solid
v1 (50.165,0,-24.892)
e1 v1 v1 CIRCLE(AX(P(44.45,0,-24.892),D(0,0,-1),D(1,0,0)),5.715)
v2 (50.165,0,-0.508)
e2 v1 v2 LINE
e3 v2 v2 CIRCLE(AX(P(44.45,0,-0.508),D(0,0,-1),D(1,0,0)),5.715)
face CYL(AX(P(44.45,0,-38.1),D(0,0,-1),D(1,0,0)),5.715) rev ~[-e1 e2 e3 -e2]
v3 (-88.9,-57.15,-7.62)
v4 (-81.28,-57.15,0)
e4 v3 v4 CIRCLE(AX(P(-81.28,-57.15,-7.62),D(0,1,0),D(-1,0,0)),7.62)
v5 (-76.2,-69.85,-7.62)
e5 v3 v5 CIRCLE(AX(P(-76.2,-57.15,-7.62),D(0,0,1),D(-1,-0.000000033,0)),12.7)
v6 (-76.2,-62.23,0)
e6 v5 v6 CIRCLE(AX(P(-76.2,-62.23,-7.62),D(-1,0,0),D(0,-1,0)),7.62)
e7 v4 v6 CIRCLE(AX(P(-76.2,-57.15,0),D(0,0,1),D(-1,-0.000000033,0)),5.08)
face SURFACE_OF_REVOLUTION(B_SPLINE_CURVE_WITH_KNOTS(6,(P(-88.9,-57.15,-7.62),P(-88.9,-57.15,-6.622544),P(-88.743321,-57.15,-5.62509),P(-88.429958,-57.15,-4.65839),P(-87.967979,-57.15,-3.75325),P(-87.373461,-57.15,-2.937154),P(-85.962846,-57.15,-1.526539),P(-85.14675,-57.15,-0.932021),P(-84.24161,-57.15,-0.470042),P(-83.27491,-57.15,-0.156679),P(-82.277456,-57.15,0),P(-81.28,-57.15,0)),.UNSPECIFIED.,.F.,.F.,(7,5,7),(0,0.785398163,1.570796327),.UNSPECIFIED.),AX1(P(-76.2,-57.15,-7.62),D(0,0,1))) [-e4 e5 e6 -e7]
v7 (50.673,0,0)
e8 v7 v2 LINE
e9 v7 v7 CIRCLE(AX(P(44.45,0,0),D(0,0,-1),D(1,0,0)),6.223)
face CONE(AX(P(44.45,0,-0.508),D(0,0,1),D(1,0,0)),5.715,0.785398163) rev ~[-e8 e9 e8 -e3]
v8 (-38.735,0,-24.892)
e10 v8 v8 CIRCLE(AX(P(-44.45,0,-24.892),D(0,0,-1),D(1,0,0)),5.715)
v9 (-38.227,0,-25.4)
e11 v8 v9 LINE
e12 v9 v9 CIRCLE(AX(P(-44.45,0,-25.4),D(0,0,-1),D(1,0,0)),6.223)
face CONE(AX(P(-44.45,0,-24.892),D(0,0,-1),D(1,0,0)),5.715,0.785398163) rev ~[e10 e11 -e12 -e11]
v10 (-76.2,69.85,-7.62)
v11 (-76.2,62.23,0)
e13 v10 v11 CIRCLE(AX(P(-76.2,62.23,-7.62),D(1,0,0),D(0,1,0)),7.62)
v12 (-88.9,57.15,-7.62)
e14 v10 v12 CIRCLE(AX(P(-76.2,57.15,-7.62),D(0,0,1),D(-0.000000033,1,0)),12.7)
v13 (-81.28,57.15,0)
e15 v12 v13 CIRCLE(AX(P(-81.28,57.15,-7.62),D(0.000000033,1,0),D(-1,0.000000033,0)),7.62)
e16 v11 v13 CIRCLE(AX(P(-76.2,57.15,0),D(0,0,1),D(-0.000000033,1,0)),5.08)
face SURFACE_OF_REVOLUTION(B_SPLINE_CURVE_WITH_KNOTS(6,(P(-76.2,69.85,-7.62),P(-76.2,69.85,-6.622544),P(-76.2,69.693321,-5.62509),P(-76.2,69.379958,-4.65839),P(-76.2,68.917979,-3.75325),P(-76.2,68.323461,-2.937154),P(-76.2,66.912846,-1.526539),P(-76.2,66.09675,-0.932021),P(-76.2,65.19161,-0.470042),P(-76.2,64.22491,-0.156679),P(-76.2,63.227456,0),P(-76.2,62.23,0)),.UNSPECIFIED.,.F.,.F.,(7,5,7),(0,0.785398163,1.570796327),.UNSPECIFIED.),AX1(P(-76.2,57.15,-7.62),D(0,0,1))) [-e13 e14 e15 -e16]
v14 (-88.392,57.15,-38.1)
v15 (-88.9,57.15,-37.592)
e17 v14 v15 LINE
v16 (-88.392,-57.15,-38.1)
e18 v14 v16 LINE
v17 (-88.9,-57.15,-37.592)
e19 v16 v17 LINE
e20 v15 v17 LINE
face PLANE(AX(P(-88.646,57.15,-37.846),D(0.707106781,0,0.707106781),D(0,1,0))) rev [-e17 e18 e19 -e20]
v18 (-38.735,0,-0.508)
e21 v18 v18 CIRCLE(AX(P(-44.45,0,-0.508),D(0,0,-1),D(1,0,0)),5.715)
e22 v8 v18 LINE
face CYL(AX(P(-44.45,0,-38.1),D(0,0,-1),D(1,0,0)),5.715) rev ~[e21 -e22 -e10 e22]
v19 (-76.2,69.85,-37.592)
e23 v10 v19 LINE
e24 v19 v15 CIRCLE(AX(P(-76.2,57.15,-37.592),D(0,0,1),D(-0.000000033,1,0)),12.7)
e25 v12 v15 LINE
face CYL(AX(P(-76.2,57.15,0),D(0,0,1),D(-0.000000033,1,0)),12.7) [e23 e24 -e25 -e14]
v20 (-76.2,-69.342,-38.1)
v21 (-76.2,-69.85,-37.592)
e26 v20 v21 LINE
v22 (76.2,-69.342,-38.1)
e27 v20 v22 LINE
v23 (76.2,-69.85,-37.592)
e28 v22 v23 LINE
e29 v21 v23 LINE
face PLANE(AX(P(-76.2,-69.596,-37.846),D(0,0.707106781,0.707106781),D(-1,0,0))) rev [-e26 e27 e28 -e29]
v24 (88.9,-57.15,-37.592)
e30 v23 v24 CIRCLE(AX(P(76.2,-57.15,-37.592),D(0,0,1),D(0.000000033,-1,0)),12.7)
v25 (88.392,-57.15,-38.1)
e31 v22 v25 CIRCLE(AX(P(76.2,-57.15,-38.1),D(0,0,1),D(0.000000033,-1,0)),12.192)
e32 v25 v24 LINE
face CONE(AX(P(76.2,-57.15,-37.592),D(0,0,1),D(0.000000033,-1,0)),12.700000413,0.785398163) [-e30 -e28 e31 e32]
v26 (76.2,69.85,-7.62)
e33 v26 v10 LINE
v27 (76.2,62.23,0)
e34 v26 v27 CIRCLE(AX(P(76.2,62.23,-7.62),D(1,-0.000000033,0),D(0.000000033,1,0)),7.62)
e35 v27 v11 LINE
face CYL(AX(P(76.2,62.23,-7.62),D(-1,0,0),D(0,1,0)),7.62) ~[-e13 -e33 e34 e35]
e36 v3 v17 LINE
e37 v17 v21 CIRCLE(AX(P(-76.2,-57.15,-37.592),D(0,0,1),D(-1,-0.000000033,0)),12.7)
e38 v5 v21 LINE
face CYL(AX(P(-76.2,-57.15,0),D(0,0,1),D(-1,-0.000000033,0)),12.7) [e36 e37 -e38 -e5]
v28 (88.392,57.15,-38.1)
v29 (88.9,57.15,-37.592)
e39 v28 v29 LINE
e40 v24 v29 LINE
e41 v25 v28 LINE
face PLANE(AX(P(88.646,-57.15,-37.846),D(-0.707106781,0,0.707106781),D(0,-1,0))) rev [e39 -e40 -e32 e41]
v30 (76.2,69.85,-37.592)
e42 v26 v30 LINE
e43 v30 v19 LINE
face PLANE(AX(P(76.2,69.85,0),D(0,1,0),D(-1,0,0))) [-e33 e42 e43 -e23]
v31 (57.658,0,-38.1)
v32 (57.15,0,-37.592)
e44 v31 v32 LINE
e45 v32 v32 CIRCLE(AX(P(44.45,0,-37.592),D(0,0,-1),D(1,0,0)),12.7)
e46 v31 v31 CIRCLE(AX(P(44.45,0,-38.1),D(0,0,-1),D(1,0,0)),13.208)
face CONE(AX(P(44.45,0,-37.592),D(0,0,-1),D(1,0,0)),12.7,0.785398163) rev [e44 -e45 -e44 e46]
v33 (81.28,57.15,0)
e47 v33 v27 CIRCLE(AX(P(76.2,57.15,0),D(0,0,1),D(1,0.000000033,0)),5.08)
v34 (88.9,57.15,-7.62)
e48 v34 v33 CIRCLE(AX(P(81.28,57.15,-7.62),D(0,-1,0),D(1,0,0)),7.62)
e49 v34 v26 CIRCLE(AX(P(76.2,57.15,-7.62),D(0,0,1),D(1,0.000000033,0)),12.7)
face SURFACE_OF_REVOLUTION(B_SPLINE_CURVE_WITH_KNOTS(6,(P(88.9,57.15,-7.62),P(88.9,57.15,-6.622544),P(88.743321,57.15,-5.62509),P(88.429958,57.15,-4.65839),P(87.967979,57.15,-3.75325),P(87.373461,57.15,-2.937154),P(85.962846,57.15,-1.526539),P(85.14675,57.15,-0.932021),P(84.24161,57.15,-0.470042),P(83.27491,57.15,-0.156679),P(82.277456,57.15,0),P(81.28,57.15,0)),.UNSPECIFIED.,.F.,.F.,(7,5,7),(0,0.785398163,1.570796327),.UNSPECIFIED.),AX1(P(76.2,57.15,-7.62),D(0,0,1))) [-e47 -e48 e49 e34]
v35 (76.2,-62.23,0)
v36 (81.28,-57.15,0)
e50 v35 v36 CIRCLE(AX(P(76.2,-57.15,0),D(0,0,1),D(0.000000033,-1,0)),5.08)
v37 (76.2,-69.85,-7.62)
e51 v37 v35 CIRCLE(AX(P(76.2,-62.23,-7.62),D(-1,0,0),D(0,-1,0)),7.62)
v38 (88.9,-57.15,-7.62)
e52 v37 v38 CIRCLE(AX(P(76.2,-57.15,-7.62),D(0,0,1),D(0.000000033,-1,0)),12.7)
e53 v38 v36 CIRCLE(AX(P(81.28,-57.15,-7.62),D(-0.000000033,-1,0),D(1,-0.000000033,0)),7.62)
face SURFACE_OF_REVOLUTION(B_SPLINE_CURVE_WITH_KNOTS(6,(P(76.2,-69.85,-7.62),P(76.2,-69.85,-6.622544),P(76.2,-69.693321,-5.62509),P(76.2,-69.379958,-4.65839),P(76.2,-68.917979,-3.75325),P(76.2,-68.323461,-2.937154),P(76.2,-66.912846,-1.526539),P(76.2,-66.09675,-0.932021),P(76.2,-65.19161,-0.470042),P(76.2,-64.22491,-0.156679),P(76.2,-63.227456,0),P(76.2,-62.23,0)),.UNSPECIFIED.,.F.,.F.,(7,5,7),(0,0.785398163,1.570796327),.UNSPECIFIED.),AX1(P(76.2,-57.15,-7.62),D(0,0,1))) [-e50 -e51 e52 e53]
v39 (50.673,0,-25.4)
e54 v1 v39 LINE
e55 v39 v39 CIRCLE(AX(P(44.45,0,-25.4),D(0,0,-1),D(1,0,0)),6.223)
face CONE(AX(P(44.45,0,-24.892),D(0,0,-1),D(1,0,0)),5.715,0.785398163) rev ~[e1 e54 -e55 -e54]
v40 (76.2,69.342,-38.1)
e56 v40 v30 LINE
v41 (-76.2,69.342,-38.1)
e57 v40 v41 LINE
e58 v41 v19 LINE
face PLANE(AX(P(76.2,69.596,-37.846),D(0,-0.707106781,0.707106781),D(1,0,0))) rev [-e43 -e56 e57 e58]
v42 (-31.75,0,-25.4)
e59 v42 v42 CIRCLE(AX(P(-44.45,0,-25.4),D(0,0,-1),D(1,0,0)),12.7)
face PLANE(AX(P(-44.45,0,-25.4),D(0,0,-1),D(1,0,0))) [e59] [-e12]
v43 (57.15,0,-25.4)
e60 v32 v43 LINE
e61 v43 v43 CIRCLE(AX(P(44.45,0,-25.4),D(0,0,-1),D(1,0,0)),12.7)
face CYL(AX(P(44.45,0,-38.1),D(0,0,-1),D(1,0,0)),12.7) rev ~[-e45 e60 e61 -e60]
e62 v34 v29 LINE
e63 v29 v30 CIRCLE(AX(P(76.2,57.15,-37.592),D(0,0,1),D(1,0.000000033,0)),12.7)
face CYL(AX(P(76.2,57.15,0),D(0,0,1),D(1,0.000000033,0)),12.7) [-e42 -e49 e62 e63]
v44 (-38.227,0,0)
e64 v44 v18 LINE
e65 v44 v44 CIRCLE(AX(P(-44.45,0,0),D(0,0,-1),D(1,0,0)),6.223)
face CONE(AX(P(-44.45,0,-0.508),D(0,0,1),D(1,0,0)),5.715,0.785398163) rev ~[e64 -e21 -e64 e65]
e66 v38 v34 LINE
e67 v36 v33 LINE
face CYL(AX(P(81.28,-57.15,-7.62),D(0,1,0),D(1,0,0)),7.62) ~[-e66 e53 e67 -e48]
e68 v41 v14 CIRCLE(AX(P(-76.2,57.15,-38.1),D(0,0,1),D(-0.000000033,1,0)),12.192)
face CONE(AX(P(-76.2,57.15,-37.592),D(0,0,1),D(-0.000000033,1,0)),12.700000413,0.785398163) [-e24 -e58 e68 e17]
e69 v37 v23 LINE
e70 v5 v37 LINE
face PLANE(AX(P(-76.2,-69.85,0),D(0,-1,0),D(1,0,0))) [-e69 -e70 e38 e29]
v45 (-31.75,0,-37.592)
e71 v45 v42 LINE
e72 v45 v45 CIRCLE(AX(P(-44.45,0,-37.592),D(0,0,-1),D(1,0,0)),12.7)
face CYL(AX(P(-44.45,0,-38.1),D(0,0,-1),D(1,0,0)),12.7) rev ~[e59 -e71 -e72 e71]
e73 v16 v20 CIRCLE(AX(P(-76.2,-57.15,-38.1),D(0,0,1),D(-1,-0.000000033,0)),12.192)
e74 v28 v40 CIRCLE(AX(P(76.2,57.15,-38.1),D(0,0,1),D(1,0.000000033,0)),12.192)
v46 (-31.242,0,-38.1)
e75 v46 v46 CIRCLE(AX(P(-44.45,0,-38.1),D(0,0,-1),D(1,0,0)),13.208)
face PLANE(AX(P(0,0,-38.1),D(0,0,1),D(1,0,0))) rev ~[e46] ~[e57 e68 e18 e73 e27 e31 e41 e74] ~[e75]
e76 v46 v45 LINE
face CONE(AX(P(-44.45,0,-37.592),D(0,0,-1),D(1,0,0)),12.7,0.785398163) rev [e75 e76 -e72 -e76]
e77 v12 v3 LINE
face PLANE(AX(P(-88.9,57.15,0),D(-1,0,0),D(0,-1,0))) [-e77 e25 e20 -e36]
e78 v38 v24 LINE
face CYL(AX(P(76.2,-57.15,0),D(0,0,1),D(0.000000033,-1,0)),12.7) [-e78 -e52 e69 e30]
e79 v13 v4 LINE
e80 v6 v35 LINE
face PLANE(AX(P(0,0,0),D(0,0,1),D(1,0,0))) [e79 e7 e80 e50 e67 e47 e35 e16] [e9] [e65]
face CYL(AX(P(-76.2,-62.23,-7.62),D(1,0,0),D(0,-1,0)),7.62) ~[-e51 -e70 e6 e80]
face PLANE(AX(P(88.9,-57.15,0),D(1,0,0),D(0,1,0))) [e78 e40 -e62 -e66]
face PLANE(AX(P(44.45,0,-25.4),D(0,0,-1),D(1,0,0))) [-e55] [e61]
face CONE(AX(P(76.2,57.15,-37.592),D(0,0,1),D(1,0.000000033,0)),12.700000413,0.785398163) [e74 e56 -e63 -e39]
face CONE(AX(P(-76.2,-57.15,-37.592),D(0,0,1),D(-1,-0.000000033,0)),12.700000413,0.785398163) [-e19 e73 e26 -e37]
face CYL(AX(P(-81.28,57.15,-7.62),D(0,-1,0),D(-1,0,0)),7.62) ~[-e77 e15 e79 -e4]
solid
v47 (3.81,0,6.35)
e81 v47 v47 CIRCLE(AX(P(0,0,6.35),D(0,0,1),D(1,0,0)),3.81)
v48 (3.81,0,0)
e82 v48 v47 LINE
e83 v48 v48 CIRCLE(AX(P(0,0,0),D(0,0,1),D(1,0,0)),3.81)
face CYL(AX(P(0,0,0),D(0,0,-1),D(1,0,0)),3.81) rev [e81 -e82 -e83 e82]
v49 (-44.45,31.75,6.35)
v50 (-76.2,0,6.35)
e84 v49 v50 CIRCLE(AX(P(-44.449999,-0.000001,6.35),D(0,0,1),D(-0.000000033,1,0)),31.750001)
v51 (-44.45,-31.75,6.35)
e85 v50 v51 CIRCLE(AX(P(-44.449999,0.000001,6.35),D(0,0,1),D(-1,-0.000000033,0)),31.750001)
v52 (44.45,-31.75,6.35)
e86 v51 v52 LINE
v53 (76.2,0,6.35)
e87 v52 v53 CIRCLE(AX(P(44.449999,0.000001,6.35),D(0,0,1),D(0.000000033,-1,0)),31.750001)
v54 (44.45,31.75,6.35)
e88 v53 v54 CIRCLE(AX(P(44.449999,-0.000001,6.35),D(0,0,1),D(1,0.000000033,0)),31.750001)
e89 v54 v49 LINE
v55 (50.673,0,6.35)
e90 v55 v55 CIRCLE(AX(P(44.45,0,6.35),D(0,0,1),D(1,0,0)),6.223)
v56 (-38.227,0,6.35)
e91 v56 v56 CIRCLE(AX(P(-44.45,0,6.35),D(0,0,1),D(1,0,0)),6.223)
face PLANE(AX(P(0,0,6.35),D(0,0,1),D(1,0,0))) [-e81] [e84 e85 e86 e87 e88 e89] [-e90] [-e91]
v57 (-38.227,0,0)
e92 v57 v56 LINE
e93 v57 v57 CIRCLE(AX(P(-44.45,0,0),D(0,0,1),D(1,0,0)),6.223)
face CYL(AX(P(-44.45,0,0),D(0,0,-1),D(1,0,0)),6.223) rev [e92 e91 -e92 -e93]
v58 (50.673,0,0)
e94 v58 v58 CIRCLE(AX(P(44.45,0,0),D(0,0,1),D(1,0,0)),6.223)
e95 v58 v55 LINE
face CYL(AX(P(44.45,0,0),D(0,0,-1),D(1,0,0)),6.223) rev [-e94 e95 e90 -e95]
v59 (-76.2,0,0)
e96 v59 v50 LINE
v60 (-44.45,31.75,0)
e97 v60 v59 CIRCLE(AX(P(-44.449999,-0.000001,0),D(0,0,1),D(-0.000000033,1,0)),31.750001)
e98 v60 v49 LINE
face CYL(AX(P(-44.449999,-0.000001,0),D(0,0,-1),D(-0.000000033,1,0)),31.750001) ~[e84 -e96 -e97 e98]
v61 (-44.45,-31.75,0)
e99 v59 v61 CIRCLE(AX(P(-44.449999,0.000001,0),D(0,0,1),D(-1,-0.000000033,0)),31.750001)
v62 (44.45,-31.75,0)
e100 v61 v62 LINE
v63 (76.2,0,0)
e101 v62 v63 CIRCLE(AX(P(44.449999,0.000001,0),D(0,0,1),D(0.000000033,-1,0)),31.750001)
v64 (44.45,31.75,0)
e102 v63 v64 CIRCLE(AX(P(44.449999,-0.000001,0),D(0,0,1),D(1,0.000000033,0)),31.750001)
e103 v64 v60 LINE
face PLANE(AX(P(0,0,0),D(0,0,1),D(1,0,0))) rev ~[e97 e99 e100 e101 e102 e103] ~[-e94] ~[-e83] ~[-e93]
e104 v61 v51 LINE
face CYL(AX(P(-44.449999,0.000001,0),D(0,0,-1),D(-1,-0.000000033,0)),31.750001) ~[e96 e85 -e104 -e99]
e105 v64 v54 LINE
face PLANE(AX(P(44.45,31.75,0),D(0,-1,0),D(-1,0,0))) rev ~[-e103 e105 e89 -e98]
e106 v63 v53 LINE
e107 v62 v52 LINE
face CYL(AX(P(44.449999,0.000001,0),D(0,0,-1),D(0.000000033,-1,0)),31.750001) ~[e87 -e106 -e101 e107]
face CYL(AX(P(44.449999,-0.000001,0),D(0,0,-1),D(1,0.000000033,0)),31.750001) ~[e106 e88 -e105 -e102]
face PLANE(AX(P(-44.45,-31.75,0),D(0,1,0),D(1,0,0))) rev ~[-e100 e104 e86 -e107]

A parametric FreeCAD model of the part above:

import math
import FreeCAD as App
import Part
import Sketcher
from FreeCAD import Vector
Q = App.Units.Quantity


def edges_at(feature, points):
    """Names of the edges that pass closest to the given points."""
    edges = feature.Shape.Edges
    near = lambda p: min(range(len(edges)), key=lambda i: edges[i].distToShape(Part.Vertex(*p))[0])
    return sorted({f"Edge{near(p) + 1}" for p in points})

doc = App.newDocument("Part")
body = doc.addObject("PartDesign::Body", "Body")

sketch1 = body.newObject("Sketcher::SketchObject", "Sketch")
sketch1.AttachmentSupport = (doc.getObject("XY_Plane"), [""])
sketch1.MapMode = "FlatFace"
sketch1.addGeometry(Part.LineSegment(Vector(76, 70, 0), Vector(-76, 70, 0)), False)
sketch1.addGeometry(Part.ArcOfCircle(Part.Circle(Vector(-76, 57, 0), Vector(0, 0, 1), 13), math.radians(90), math.radians(180)), False)
sketch1.addGeometry(Part.LineSegment(Vector(-89, 57, 0), Vector(-89, -57, 0)), False)
sketch1.addGeometry(Part.ArcOfCircle(Part.Circle(Vector(-76, -57, 0), Vector(0, 0, 1), 13), math.radians(-180), math.radians(-90)), False)
sketch1.addGeometry(Part.LineSegment(Vector(-76, -70, 0), Vector(76, -70, 0)), False)
sketch1.addGeometry(Part.ArcOfCircle(Part.Circle(Vector(76, -57, 0), Vector(0, 0, 1), 13), math.radians(-90), math.radians(0)), False)
sketch1.addGeometry(Part.LineSegment(Vector(89, -57, 0), Vector(89, 57, 0)), False)
sketch1.addGeometry(Part.ArcOfCircle(Part.Circle(Vector(76, 57, 0), Vector(0, 0, 1), 13), math.radians(0), math.radians(90)), False)
sketch1.addConstraint(Sketcher.Constraint("Tangent", 0, 2, 1, 1))
sketch1.addConstraint(Sketcher.Constraint("Tangent", 1, 2, 2, 1))
sketch1.addConstraint(Sketcher.Constraint("Tangent", 2, 2, 3, 1))
sketch1.addConstraint(Sketcher.Constraint("Tangent", 3, 2, 4, 1))
sketch1.addConstraint(Sketcher.Constraint("Tangent", 4, 2, 5, 1))
sketch1.addConstraint(Sketcher.Constraint("Tangent", 5, 2, 6, 1))
sketch1.addConstraint(Sketcher.Constraint("Tangent", 6, 2, 7, 1))
sketch1.addConstraint(Sketcher.Constraint("Tangent", 7, 2, 0, 1))
sketch1.addConstraint(Sketcher.Constraint("Horizontal", 0))
sketch1.addConstraint(Sketcher.Constraint("Vertical", 2))
sketch1.addConstraint(Sketcher.Constraint("Horizontal", 4))
sketch1.addConstraint(Sketcher.Constraint("Vertical", 6))
sketch1.addConstraint(Sketcher.Constraint("Equal", 1, 3))
sketch1.addConstraint(Sketcher.Constraint("Equal", 3, 5))
sketch1.addConstraint(Sketcher.Constraint("Equal", 5, 7))
sketch1.addConstraint(Sketcher.Constraint("Symmetric", 1, 3, 5, 3, -1, 1))
sketch1.addConstraint(Sketcher.Constraint("Radius", 1, Q("0.5 in")))
sketch1.addConstraint(Sketcher.Constraint("DistanceX", 0, 2, 0, 1, Q("6 in")))
sketch1.addConstraint(Sketcher.Constraint("DistanceY", 2, 2, 2, 1, Q("4.5 in")))
pad1 = body.newObject("PartDesign::Pad", "Pad")
pad1.Profile = sketch1
pad1.Length = Q("1.5 in")
pad1.Reversed = True
doc.recompute()

fillet = body.newObject("PartDesign::Fillet", "Fillet")
fillet.Base = (pad1, edges_at(pad1, [(0, -69.85, 0)]))
fillet.Radius = Q("0.3 in")

sketch2 = body.newObject("Sketcher::SketchObject", "Sketch001")
sketch2.AttachmentSupport = (doc.getObject("XY_Plane"), [""])
sketch2.MapMode = "FlatFace"
sketch2.AttachmentOffset = App.Placement(Vector(0, 0, -1.5 * 25.4), App.Rotation())
sketch2.addGeometry(Part.Circle(Vector(-44, 0, 0), Vector(0, 0, 1), 13), False)
sketch2.addGeometry(Part.Circle(Vector(44, 0, 0), Vector(0, 0, 1), 13), False)
sketch2.addConstraint(Sketcher.Constraint("Equal", 0, 1))
sketch2.addConstraint(Sketcher.Constraint("Symmetric", 0, 3, 1, 3, -1, 1))
sketch2.addConstraint(Sketcher.Constraint("PointOnObject", 0, 3, -1))
sketch2.addConstraint(Sketcher.Constraint("Diameter", 0, Q("1 in")))
sketch2.addConstraint(Sketcher.Constraint("DistanceX", 0, 3, 1, 3, Q("3.5 in")))
pocket1 = body.newObject("PartDesign::Pocket", "Pocket")
pocket1.Profile = sketch2
pocket1.Length = Q("0.5 in")
pocket1.Reversed = True

sketch3 = body.newObject("Sketcher::SketchObject", "Sketch002")
sketch3.AttachmentSupport = (doc.getObject("XY_Plane"), [""])
sketch3.MapMode = "FlatFace"
sketch3.AttachmentOffset = App.Placement(Vector(0, 0, -1.5 * 25.4), App.Rotation())
sketch3.addGeometry(Part.Circle(Vector(-44, 0, 0), Vector(0, 0, 1), 6), False)
sketch3.addGeometry(Part.Circle(Vector(44, 0, 0), Vector(0, 0, 1), 6), False)
sketch3.addConstraint(Sketcher.Constraint("Equal", 0, 1))
sketch3.addConstraint(Sketcher.Constraint("Symmetric", 0, 3, 1, 3, -1, 1))
sketch3.addConstraint(Sketcher.Constraint("PointOnObject", 0, 3, -1))
sketch3.addConstraint(Sketcher.Constraint("Diameter", 0, Q("0.45 in")))
sketch3.addConstraint(Sketcher.Constraint("DistanceX", 0, 3, 1, 3, Q("3.5 in")))
pocket2 = body.newObject("PartDesign::Pocket", "Pocket001")
pocket2.Profile = sketch3
pocket2.Type = "ThroughAll"
pocket2.Reversed = True
doc.recompute()

chamfer = body.newObject("PartDesign::Chamfer", "Chamfer")
chamfer.Base = (pocket2, edges_at(pocket2, [
    (0, -69.85, -38.1),
    (-57.15, 0, -38.1),
    (31.75, 0, -38.1),
    (38.735, 0, -25.4),
    (-50.165, 0, -25.4),
    (38.735, 0, 0),
    (-50.165, 0, 0),
]))
chamfer.Size = Q("0.02 in")
body2 = doc.addObject("PartDesign::Body", "Body001")

sketch4 = body2.newObject("Sketcher::SketchObject", "Sketch003")
sketch4.AttachmentSupport = (doc.getObject("XY_Plane001"), [""])
sketch4.MapMode = "FlatFace"
sketch4.addGeometry(Part.LineSegment(Vector(44.5, 31.8, 0), Vector(-44.5, 31.8, 0)), False)
sketch4.addGeometry(Part.ArcOfCircle(Part.Circle(Vector(-44.4, 0, 0), Vector(0, 0, 1), 31.8), math.radians(90), math.radians(180)), False)
sketch4.addGeometry(Part.ArcOfCircle(Part.Circle(Vector(-44.4, 0, 0), Vector(0, 0, 1), 31.8), math.radians(-180), math.radians(-90)), False)
sketch4.addGeometry(Part.LineSegment(Vector(-44.5, -31.8, 0), Vector(44.5, -31.8, 0)), False)
sketch4.addGeometry(Part.ArcOfCircle(Part.Circle(Vector(44.4, 0, 0), Vector(0, 0, 1), 31.8), math.radians(-90), math.radians(0)), False)
sketch4.addGeometry(Part.ArcOfCircle(Part.Circle(Vector(44.4, 0, 0), Vector(0, 0, 1), 31.8), math.radians(0), math.radians(90)), False)
sketch4.addGeometry(Part.Circle(Vector(-44.5, 0, 0), Vector(0, 0, 1), 6.2), False)
sketch4.addGeometry(Part.Circle(Vector(0, 0, 0), Vector(0, 0, 1), 3.8), False)
sketch4.addGeometry(Part.Circle(Vector(44.5, 0, 0), Vector(0, 0, 1), 6.2), False)
sketch4.addConstraint(Sketcher.Constraint("Tangent", 0, 2, 1, 1))
sketch4.addConstraint(Sketcher.Constraint("Tangent", 1, 2, 2, 1))
sketch4.addConstraint(Sketcher.Constraint("Tangent", 2, 2, 3, 1))
sketch4.addConstraint(Sketcher.Constraint("Tangent", 3, 2, 4, 1))
sketch4.addConstraint(Sketcher.Constraint("Tangent", 4, 2, 5, 1))
sketch4.addConstraint(Sketcher.Constraint("Tangent", 5, 2, 0, 1))
sketch4.addConstraint(Sketcher.Constraint("Horizontal", 0))
sketch4.addConstraint(Sketcher.Constraint("Horizontal", 3))
sketch4.addConstraint(Sketcher.Constraint("Coincident", 7, 3, -1, 1))
sketch4.addConstraint(Sketcher.Constraint("Coincident", 6, 3, 1, 3))
sketch4.addConstraint(Sketcher.Constraint("Coincident", 8, 3, 4, 3))
sketch4.addConstraint(Sketcher.Constraint("Equal", 1, 2))
sketch4.addConstraint(Sketcher.Constraint("Equal", 2, 4))
sketch4.addConstraint(Sketcher.Constraint("Equal", 6, 8))
sketch4.addConstraint(Sketcher.Constraint("Symmetric", 1, 3, 4, 3, -1, 1))
sketch4.addConstraint(Sketcher.Constraint("PointOnObject", 1, 2, -1))
sketch4.addConstraint(Sketcher.Constraint("PointOnObject", 4, 2, -1))
sketch4.addConstraint(Sketcher.Constraint("Diameter", 7, Q("0.3 in")))
sketch4.addConstraint(Sketcher.Constraint("Diameter", 6, Q("0.49 in")))
sketch4.addConstraint(Sketcher.Constraint("Radius", 1, Q("1.25 in")))
sketch4.addConstraint(Sketcher.Constraint("DistanceX", 0, 2, 0, 1, Q("3.5 in")))
pad2 = body2.newObject("PartDesign::Pad", "Pad001")
pad2.Profile = sketch4
pad2.Length = Q("0.25 in")

doc.recompute()
